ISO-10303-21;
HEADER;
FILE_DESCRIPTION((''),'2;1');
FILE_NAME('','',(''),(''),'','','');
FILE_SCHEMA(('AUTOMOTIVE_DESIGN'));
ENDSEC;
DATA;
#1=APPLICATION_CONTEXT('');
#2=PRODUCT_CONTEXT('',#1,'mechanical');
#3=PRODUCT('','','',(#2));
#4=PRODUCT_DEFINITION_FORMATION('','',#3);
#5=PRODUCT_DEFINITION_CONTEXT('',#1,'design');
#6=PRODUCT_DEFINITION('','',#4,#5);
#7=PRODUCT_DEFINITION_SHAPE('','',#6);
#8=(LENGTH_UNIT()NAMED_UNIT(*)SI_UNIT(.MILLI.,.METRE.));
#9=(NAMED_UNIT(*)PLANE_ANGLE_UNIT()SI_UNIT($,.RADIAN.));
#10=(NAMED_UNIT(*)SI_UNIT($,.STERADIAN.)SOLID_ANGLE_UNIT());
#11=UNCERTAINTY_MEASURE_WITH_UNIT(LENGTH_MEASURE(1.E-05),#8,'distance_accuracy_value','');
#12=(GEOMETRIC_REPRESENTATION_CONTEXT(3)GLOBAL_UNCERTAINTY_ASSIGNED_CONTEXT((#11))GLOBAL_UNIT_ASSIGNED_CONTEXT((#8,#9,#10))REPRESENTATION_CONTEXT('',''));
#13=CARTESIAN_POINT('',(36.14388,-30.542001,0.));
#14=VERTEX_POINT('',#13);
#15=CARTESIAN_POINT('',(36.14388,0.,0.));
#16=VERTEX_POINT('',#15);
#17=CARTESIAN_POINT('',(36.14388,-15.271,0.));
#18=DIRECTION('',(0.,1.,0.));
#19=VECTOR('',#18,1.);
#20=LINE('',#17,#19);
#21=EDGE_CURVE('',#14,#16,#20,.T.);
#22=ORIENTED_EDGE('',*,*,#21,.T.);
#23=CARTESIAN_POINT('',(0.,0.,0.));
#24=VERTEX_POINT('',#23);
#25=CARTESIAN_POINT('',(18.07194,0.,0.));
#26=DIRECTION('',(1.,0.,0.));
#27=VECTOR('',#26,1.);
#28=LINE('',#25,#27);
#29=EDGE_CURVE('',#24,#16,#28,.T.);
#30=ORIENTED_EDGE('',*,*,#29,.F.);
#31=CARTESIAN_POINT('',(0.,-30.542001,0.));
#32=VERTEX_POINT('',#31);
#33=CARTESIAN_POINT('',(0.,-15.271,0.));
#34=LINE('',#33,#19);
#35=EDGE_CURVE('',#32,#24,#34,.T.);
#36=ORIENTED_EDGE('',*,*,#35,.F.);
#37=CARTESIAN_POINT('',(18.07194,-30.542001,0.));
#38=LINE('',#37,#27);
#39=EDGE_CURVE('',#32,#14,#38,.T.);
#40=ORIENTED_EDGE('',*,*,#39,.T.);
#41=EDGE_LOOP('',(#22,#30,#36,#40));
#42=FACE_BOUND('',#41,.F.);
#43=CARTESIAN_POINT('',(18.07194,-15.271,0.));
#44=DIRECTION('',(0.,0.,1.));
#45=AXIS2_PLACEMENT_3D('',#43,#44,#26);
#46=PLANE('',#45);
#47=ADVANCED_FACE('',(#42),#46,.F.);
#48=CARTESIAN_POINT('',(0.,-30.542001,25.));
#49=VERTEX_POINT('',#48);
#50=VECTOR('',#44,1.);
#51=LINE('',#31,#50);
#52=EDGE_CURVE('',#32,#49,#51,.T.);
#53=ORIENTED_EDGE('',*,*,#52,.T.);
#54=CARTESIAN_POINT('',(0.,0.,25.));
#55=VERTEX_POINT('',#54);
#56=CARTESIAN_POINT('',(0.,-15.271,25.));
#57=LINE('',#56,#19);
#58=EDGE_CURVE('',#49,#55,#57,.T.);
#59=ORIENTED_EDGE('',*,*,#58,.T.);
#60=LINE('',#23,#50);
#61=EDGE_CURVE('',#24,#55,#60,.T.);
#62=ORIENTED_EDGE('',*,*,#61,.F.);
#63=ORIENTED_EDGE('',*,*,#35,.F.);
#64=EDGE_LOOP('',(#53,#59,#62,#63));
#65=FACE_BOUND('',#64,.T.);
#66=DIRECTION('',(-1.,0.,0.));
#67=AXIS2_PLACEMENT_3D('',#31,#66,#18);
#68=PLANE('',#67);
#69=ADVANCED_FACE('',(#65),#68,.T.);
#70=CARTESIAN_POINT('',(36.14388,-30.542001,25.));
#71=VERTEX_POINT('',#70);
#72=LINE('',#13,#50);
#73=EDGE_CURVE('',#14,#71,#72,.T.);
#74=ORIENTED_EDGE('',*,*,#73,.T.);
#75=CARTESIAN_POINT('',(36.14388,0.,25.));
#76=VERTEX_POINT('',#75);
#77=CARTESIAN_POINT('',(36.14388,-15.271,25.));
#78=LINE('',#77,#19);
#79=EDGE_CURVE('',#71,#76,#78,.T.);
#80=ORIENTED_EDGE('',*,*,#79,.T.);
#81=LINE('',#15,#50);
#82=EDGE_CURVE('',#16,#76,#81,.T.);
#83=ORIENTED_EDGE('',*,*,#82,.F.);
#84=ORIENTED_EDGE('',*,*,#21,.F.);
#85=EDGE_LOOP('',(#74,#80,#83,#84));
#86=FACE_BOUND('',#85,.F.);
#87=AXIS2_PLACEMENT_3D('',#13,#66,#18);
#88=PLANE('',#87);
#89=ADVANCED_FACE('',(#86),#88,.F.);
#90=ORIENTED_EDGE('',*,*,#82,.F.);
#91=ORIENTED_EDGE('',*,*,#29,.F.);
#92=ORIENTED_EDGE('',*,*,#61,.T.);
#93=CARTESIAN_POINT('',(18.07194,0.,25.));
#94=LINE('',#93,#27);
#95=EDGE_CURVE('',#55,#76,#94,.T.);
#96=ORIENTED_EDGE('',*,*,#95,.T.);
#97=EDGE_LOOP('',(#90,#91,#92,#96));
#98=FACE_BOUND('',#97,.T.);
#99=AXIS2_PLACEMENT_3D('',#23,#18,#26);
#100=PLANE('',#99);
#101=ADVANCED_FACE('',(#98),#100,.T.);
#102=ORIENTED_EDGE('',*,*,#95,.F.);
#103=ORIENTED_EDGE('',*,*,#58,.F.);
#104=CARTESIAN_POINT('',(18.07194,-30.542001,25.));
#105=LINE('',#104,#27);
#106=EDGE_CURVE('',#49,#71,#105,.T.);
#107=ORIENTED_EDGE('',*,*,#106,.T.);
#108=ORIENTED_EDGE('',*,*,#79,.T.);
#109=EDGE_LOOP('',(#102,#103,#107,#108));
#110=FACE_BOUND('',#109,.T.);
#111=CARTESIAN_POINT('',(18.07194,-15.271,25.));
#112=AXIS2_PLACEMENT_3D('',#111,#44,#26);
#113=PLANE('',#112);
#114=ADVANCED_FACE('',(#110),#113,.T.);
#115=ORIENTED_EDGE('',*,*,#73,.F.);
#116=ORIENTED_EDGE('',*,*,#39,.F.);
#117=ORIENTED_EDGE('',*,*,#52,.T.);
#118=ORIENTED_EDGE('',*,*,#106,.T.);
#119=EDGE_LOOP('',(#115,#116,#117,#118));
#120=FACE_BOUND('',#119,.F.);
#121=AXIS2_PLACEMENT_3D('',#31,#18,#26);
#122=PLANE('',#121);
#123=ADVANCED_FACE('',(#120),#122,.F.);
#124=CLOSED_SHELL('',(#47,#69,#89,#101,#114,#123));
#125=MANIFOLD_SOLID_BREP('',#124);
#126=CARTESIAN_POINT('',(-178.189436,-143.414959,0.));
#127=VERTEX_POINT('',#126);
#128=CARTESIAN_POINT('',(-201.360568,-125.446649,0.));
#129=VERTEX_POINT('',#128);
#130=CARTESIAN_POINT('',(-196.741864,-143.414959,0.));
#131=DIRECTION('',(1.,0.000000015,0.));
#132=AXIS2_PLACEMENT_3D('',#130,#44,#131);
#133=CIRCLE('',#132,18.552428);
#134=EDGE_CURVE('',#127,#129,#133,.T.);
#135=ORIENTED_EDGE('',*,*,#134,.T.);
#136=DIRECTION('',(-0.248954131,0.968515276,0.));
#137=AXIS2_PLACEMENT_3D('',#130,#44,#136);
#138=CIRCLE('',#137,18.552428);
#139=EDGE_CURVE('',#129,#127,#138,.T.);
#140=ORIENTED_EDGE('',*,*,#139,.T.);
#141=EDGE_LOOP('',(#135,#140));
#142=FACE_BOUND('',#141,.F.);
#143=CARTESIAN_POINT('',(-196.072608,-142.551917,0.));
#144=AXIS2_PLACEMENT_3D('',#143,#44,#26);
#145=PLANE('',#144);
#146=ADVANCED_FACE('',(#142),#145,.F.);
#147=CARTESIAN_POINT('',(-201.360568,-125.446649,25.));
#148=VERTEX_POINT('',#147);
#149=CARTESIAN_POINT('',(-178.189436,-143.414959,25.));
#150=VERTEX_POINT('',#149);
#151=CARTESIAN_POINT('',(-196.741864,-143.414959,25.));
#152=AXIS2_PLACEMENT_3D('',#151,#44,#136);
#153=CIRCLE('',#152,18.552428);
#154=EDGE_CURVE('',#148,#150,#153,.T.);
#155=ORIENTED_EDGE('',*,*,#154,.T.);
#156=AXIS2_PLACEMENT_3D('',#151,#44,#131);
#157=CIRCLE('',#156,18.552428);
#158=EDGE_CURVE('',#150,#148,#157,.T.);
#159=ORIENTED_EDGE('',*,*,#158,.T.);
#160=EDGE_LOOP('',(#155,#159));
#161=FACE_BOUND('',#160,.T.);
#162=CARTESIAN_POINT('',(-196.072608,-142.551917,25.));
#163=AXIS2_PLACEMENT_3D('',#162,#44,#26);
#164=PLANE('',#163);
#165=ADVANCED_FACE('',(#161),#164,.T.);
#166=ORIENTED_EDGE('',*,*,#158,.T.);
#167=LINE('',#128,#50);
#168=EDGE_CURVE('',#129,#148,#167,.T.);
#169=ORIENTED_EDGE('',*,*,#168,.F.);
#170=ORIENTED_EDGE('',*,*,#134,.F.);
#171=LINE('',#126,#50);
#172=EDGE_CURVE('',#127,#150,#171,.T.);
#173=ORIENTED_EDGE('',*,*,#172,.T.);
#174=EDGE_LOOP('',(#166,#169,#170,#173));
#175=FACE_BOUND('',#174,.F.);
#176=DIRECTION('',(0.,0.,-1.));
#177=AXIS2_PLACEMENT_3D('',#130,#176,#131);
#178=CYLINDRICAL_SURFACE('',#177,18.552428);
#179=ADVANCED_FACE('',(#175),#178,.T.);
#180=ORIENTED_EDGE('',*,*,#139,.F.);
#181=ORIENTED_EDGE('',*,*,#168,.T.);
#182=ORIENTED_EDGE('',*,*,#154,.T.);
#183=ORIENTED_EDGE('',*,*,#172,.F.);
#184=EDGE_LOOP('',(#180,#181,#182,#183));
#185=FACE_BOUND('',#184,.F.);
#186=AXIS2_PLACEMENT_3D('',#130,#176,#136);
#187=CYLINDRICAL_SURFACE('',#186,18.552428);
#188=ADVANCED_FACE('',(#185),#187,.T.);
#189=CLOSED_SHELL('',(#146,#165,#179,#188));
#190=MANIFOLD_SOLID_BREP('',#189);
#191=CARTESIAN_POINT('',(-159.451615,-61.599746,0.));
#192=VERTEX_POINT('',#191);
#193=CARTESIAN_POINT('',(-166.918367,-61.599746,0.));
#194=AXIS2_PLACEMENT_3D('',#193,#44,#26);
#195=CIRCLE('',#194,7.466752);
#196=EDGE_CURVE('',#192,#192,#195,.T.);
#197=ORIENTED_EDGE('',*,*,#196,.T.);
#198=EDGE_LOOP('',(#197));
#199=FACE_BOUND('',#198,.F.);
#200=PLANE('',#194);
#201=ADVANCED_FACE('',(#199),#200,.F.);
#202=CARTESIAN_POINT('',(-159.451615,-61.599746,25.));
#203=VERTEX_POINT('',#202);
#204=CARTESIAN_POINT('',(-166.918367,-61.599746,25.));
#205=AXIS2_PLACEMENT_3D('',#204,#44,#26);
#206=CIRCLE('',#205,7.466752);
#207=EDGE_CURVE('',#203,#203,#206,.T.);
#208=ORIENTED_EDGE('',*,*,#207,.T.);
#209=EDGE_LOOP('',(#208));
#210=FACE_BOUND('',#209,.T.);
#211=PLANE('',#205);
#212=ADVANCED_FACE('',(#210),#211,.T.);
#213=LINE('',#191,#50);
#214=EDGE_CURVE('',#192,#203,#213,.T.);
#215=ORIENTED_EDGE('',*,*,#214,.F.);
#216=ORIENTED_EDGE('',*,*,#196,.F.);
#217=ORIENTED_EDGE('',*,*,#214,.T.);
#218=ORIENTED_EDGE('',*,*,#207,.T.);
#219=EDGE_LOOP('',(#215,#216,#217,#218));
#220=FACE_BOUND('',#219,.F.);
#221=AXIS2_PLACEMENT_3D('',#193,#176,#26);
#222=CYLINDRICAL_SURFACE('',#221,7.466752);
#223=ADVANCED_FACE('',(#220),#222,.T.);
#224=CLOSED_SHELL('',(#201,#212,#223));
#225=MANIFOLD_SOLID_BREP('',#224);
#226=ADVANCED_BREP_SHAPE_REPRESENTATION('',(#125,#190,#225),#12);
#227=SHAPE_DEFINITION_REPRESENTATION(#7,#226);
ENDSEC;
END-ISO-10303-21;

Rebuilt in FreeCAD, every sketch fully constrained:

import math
import FreeCAD as App
import Part
import Sketcher
from FreeCAD import Vector


def add_polygon(sketch, points):
    """Adds a closed chain of lines whose ends are joined by coincident constraints."""
    first, n = sketch.GeometryCount, len(points)
    for a, b in zip(points, points[1:] + points[:1]):
        sketch.addGeometry(Part.LineSegment(App.Vector(*a, 0), App.Vector(*b, 0)), False)
    for i in range(n):
        sketch.addConstraint(Sketcher.Constraint("Coincident", first + i, 2, first + (i + 1) % n, 1))

doc = App.newDocument("Part")
body = doc.addObject("PartDesign::Body", "Body")
body.AllowCompound = True

# Sketch on XY plane
sketch1 = doc.addObject("Sketcher::SketchObject", "Sketch")
body.addObject(sketch1)
sketch1.AttachmentSupport = (doc.XY_Plane, [""])
sketch1.MapMode = "FlatFace"
sketch1.addGeometry(Part.ArcOfCircle(Part.Circle(Vector(-196.741864, -143.414959, 0), Vector(0, 0, 1), 18.552428), math.radians(104.415632), math.radians(360.000001)), False)  # 0
sketch1.addGeometry(Part.ArcOfCircle(Part.Circle(Vector(-196.741864, -143.414959, 0), Vector(0, 0, 1), 18.552428), math.radians(0.000001), math.radians(104.415632)), False)  # 1
sketch1.addGeometry(Part.Circle(Vector(-166.918367, -61.599746, 0), Vector(0, 0, 1), 7.466752), False)  # 2
add_polygon(sketch1, [(0, 0), (0, -30.542001), (36.14388, -30.542001), (36.14388, 0)])  # lines 3-6
sketch1.addConstraint(Sketcher.Constraint("Tangent", 0, 1, 1, 2))
sketch1.addConstraint(Sketcher.Constraint("Coincident", 1, 1, 0, 2))
sketch1.addConstraint(Sketcher.Constraint("Vertical", 3))
sketch1.addConstraint(Sketcher.Constraint("Horizontal", 4))
sketch1.addConstraint(Sketcher.Constraint("Vertical", 5))
sketch1.addConstraint(Sketcher.Constraint("Horizontal", 6))
sketch1.addConstraint(Sketcher.Constraint("Coincident", 6, 2, -1, 1))
sketch1.addConstraint(Sketcher.Constraint("Horizontal", 0, 3, 1, 1))
sketch1.addConstraint(Sketcher.Constraint("DistanceY", 3, 2, 3, 1, 30.542001))
sketch1.addConstraint(Sketcher.Constraint("Radius", 0, 18.552428))
sketch1.addConstraint(Sketcher.Constraint("Diameter", 2, 14.933504))
sketch1.addConstraint(Sketcher.Constraint("DistanceX", 4, 1, 4, 2, 36.14388))
sketch1.addConstraint(Sketcher.Constraint("DistanceX", 0, 1, 2, 3, 34.442201))
sketch1.addConstraint(Sketcher.Constraint("DistanceY", 0, 3, -1, 1, 143.414959))
sketch1.addConstraint(Sketcher.Constraint("DistanceX", 0, 1, -1, 1, 201.360568))
sketch1.addConstraint(Sketcher.Constraint("DistanceY", 0, 1, -1, 1, 125.446649))
sketch1.addConstraint(Sketcher.Constraint("DistanceY", 2, 3, -1, 1, 61.599746))
pad1 = doc.addObject("PartDesign::Pad", "Pad")
body.addObject(pad1)
pad1.Profile = sketch1
pad1.Length = 25

doc.recompute()
